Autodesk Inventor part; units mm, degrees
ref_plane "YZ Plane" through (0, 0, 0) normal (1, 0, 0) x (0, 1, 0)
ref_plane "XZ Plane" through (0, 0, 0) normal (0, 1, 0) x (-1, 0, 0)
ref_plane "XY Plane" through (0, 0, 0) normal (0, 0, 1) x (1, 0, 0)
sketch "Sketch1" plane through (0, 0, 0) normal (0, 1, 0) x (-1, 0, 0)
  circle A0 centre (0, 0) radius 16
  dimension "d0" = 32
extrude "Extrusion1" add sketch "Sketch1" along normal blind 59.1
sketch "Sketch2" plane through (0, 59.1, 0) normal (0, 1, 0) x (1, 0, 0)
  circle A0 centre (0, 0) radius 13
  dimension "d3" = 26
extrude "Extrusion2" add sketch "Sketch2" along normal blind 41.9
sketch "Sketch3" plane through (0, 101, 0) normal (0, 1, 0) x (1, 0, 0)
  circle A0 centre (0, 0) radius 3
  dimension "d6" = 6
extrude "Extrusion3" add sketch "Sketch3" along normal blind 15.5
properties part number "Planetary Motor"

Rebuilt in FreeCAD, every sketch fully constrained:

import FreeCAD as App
import Part
import Sketcher

V = App.Vector
Q = App.Units.Quantity

doc = App.newDocument("Part")
body = doc.addObject("PartDesign::Body", "Body")

# Sketch on XZ plane
sketch1 = body.newObject("Sketcher::SketchObject", "Sketch")
sketch1.AttachmentSupport = (doc.getObject("XZ_Plane"), [""])
sketch1.MapMode = "FlatFace"
sketch1.addGeometry(Part.Circle(V(0, 0, 0), V(0, 0, 1), 16), False)
sketch1.addConstraint([
    Sketcher.Constraint("Coincident", 0, 3, -1, 1),
    Sketcher.Constraint("Diameter", 0, Q("32 mm")),
])
pad1 = body.newObject("PartDesign::Pad", "Pad")
pad1.Profile = sketch1
pad1.Length = 59.1
pad1.Reversed = True

# Sketch on XZ plane
sketch2 = body.newObject("Sketcher::SketchObject", "Sketch001")
sketch2.AttachmentSupport = (doc.getObject("XZ_Plane"), [""])
sketch2.MapMode = "FlatFace"
sketch2.AttachmentOffset = App.Placement(V(0, 0, -59.1), App.Rotation())
sketch2.addGeometry(Part.Circle(V(0, 0, 0), V(0, 0, 1), 13), False)
sketch2.addConstraint([
    Sketcher.Constraint("Coincident", 0, 3, -1, 1),
    Sketcher.Constraint("Diameter", 0, Q("26 mm")),
])
pad2 = body.newObject("PartDesign::Pad", "Pad001")
pad2.Profile = sketch2
pad2.Length = 41.9
pad2.Reversed = True

# Sketch on XZ plane
sketch3 = body.newObject("Sketcher::SketchObject", "Sketch002")
sketch3.AttachmentSupport = (doc.getObject("XZ_Plane"), [""])
sketch3.MapMode = "FlatFace"
sketch3.AttachmentOffset = App.Placement(V(0, 0, -101), App.Rotation())
sketch3.addGeometry(Part.Circle(V(0, 0, 0), V(0, 0, 1), 3), False)
sketch3.addConstraint([
    Sketcher.Constraint("Coincident", 0, 3, -1, 1),
    Sketcher.Constraint("Diameter", 0, Q("6 mm")),
])
pad3 = body.newObject("PartDesign::Pad", "Pad002")
pad3.Profile = sketch3
pad3.Length = 15.5
pad3.Reversed = True

doc.recompute()
